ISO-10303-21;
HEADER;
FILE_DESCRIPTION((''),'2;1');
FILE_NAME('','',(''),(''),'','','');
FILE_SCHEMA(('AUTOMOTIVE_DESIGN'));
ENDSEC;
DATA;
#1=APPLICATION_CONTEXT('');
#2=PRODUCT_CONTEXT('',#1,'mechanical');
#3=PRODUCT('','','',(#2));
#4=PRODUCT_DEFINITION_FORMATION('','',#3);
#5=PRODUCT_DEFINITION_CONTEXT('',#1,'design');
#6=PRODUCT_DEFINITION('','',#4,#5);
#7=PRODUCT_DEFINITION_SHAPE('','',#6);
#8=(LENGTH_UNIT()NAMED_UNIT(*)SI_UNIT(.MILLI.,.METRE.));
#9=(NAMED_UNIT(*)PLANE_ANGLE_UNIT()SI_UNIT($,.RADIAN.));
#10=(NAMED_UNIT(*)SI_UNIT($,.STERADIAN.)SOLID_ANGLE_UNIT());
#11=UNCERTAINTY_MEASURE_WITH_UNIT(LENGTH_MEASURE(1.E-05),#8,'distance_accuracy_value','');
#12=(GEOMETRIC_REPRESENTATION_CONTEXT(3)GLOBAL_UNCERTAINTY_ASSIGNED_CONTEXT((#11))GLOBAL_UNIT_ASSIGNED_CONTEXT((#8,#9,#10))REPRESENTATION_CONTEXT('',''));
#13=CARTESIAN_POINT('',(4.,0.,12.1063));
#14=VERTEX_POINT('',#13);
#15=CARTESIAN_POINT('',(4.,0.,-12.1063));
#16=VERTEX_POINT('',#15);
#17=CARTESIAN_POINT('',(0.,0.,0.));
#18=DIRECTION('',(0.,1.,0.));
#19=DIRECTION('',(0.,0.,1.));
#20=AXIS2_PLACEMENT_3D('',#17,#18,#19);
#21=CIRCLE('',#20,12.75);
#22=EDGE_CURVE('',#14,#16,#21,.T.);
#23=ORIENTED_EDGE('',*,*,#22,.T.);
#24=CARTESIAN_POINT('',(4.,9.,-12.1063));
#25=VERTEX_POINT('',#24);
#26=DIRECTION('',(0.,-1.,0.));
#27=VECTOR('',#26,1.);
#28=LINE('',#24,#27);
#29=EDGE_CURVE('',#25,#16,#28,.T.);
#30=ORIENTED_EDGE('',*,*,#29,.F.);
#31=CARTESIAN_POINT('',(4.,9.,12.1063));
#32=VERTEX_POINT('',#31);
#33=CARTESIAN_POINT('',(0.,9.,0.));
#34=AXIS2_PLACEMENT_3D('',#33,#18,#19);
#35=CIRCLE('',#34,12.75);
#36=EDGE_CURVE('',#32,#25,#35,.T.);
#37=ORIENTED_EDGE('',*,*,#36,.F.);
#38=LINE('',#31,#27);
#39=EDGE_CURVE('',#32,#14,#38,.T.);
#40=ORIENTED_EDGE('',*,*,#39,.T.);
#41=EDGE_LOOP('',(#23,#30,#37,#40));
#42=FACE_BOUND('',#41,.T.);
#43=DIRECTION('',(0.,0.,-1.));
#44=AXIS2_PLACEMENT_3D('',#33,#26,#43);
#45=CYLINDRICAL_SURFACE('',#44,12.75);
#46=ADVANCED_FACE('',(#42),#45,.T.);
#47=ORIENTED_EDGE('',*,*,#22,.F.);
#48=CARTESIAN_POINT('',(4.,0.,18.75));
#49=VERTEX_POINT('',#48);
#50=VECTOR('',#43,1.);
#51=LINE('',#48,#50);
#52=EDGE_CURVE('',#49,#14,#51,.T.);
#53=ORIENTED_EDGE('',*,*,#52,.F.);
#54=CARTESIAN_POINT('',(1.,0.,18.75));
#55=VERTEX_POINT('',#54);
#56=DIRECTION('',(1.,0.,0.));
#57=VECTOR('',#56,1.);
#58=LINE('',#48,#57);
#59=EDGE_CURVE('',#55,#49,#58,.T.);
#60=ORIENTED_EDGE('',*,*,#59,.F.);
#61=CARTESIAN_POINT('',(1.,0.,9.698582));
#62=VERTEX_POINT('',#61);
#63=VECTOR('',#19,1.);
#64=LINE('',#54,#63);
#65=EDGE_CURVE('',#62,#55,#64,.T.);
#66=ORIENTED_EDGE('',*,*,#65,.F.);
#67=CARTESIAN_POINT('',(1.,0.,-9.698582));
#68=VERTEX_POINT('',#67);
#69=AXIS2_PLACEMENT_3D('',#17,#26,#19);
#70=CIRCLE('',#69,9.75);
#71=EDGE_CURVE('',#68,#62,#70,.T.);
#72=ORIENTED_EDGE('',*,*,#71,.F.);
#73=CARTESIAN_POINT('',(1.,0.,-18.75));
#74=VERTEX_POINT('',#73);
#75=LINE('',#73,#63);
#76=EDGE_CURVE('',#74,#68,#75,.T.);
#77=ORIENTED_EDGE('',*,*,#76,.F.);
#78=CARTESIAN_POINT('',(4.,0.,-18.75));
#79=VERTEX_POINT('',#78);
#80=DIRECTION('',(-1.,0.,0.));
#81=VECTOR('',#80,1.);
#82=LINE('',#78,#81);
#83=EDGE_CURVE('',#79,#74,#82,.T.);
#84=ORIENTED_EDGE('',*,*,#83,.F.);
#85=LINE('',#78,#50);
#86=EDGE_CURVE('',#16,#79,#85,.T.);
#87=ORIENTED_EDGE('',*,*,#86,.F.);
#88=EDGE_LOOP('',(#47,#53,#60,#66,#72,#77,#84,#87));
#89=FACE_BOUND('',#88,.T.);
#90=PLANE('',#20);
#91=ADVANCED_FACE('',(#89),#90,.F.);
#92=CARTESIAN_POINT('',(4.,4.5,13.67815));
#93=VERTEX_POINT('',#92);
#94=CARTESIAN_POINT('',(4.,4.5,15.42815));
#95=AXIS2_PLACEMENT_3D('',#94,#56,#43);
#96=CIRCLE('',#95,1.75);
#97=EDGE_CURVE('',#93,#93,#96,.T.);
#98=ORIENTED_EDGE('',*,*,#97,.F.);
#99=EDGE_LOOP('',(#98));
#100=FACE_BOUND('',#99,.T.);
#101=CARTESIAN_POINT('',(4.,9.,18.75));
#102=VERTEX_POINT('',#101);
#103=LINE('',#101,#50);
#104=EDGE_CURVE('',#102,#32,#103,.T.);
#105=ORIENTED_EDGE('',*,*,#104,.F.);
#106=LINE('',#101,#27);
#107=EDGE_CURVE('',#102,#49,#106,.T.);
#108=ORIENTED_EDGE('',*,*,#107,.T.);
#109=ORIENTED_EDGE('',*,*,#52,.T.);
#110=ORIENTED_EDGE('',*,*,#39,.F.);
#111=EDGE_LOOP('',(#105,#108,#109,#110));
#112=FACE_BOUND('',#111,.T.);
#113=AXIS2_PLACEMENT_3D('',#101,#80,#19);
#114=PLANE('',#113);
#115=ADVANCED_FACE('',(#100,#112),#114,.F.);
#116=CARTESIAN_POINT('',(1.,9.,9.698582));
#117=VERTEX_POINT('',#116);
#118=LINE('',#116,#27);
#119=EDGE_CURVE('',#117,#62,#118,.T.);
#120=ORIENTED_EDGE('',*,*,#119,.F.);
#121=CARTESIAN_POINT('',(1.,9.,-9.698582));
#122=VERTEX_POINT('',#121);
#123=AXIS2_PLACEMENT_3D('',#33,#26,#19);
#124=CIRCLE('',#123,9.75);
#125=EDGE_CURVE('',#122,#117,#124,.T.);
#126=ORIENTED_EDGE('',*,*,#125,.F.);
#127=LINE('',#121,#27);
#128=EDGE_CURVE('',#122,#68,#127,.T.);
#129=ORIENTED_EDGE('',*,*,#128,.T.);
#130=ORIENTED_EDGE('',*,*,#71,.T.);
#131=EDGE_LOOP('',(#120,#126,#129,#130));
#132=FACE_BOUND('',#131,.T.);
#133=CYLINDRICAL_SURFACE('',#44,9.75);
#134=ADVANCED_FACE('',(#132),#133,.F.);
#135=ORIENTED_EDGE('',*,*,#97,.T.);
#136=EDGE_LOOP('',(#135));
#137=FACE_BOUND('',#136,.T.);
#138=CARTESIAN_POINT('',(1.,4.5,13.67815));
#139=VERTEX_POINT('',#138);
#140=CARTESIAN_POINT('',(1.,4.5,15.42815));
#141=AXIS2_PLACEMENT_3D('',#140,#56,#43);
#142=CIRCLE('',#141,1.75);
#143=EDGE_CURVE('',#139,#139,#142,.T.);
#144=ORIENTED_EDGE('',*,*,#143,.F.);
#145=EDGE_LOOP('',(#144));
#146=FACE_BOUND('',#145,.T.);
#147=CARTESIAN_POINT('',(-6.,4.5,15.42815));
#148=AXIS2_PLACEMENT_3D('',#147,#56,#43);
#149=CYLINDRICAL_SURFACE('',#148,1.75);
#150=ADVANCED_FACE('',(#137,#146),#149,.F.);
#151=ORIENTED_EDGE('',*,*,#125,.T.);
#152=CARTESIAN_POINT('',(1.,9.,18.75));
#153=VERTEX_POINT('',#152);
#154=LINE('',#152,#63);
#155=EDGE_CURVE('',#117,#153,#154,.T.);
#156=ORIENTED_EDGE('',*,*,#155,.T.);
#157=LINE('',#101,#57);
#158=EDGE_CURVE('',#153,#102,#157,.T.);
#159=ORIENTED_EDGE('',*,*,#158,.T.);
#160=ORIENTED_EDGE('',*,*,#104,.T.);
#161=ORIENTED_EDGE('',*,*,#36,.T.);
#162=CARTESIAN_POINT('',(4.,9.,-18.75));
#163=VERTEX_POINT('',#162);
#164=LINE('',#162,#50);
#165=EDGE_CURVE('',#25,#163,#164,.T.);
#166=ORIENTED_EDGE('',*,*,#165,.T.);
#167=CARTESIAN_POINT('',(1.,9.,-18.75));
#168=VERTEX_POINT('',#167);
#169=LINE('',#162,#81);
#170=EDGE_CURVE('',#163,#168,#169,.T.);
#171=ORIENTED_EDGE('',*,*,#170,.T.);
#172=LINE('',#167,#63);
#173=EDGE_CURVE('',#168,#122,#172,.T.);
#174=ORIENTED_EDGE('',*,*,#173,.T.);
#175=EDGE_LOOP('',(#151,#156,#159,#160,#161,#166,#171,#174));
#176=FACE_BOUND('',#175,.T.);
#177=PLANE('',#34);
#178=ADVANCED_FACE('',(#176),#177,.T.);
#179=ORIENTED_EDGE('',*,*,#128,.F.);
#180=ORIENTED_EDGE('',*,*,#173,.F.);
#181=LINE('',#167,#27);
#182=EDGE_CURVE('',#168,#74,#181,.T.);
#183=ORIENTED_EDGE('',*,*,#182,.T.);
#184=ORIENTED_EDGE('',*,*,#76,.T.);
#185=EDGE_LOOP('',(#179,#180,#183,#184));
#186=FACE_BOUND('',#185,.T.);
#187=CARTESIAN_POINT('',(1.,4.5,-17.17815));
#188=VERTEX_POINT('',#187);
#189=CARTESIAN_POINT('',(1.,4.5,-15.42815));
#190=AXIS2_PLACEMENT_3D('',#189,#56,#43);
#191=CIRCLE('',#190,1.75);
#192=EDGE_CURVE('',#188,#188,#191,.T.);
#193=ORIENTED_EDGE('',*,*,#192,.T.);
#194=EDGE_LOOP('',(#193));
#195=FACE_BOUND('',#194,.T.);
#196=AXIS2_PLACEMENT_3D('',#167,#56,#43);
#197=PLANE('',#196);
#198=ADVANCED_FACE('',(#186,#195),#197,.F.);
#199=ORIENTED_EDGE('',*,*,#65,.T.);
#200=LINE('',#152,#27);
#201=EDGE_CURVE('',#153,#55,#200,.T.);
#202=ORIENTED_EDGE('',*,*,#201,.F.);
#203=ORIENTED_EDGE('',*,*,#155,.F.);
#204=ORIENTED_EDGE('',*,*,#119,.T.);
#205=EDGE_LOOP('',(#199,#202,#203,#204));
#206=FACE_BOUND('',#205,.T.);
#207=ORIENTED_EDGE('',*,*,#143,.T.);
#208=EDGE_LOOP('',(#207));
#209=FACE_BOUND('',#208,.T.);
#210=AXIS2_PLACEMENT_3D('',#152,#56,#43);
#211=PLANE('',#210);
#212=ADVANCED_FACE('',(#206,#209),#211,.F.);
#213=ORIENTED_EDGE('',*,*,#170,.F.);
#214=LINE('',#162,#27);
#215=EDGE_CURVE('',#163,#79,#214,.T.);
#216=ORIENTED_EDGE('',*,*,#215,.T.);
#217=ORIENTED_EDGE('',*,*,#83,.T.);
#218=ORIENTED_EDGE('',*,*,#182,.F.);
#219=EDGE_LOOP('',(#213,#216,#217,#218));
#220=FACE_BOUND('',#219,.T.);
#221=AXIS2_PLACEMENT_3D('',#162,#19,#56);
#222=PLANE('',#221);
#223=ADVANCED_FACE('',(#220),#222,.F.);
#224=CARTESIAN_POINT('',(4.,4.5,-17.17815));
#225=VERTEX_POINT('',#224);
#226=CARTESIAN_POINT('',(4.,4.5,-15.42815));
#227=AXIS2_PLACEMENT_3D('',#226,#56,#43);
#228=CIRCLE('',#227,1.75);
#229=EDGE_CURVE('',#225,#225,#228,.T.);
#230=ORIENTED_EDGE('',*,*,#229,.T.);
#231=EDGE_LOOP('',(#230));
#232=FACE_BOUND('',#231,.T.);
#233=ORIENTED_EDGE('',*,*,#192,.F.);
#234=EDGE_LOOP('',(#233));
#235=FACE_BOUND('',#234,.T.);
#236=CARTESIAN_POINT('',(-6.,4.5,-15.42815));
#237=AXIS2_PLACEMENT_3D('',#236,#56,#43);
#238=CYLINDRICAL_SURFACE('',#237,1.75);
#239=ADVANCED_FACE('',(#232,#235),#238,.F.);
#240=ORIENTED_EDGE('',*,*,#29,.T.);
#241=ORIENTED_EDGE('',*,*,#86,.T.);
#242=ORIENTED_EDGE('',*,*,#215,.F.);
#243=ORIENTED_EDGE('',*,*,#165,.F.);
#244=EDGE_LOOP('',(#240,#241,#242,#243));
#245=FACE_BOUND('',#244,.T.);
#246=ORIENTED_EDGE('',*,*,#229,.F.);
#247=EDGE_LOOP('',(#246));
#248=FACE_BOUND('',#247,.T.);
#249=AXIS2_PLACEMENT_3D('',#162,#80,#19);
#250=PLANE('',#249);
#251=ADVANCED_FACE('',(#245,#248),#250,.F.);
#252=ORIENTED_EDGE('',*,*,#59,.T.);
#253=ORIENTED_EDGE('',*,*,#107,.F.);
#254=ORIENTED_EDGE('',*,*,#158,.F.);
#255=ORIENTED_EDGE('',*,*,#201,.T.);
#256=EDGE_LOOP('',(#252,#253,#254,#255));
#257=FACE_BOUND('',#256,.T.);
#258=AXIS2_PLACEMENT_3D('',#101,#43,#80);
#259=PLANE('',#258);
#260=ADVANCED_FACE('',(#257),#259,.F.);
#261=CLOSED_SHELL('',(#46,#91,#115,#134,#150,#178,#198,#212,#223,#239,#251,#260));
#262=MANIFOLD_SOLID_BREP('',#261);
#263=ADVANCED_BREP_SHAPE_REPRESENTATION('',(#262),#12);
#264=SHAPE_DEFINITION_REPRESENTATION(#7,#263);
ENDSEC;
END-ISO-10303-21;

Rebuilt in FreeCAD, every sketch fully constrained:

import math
import FreeCAD as App
import Part
import Sketcher

V = App.Vector

doc = App.newDocument("Part")
body = doc.addObject("PartDesign::Body", "Body")

# Sketch on XZ plane
sketch1 = body.newObject("Sketcher::SketchObject", "Sketch")
sketch1.AttachmentSupport = (doc.getObject("XZ_Plane"), [""])
sketch1.MapMode = "FlatFace"
sketch1.addGeometry(Part.LineSegment(V(4, 18.8, 0), V(4, 12.1, 0)), False)
sketch1.addGeometry(Part.ArcOfCircle(Part.Circle(V(0, 0, 0), V(0, 0, 1), 12.8), math.radians(-72), math.radians(72)), False)
sketch1.addGeometry(Part.LineSegment(V(4, -12.1, 0), V(4, -18.8, 0)), False)
sketch1.addGeometry(Part.LineSegment(V(4, -18.8, 0), V(1, -18.8, 0)), False)
sketch1.addGeometry(Part.LineSegment(V(1, -18.8, 0), V(1, -9.7, 0)), False)
sketch1.addGeometry(Part.ArcOfCircle(Part.Circle(V(0, 0, 0), V(0, 0, 1), 9.8), math.radians(-84), math.radians(84)), False)
sketch1.addGeometry(Part.LineSegment(V(1, 9.7, 0), V(1, 18.8, 0)), False)
sketch1.addGeometry(Part.LineSegment(V(1, 18.8, 0), V(4, 18.8, 0)), False)
sketch1.addConstraint(Sketcher.Constraint("Coincident", 0, 2, 1, 2))
sketch1.addConstraint(Sketcher.Constraint("Coincident", 1, 1, 2, 1))
sketch1.addConstraint(Sketcher.Constraint("Coincident", 2, 2, 3, 1))
sketch1.addConstraint(Sketcher.Constraint("Coincident", 3, 2, 4, 1))
sketch1.addConstraint(Sketcher.Constraint("Coincident", 4, 2, 5, 1))
sketch1.addConstraint(Sketcher.Constraint("Coincident", 5, 2, 6, 1))
sketch1.addConstraint(Sketcher.Constraint("Coincident", 6, 2, 7, 1))
sketch1.addConstraint(Sketcher.Constraint("Coincident", 7, 2, 0, 1))
sketch1.addConstraint(Sketcher.Constraint("Vertical", 0))
sketch1.addConstraint(Sketcher.Constraint("Vertical", 2))
sketch1.addConstraint(Sketcher.Constraint("Horizontal", 3))
sketch1.addConstraint(Sketcher.Constraint("Vertical", 4))
sketch1.addConstraint(Sketcher.Constraint("Vertical", 6))
sketch1.addConstraint(Sketcher.Constraint("Horizontal", 7))
sketch1.addConstraint(Sketcher.Constraint("Coincident", 1, 3, -1, 1))
sketch1.addConstraint(Sketcher.Constraint("Coincident", 5, 3, -1, 1))
sketch1.addConstraint(Sketcher.Constraint("Symmetric", 3, 2, 6, 2, -1))
sketch1.addConstraint(Sketcher.Constraint("Vertical", 0, 2, 1, 1))
sketch1.addConstraint(Sketcher.Constraint("DistanceX", 3, 2, 3, 1, 3.0))
sketch1.addConstraint(Sketcher.Constraint("Radius", 1, 12.75))
sketch1.addConstraint(Sketcher.Constraint("Radius", 5, 9.75))
sketch1.addConstraint(Sketcher.Constraint("DistanceX", -1, 1, 0, 2, 4.0))
sketch1.addConstraint(Sketcher.Constraint("DistanceY", 2, 2, -1, 1, 18.75))
pad1 = body.newObject("PartDesign::Pad", "Pad")
pad1.Profile = sketch1
pad1.Length = 9
pad1.Reversed = True

# Sketch on YZ plane
sketch2 = body.newObject("Sketcher::SketchObject", "Sketch001")
sketch2.AttachmentSupport = (doc.getObject("YZ_Plane"), [""])
sketch2.MapMode = "FlatFace"
sketch2.AttachmentOffset = App.Placement(V(0, 0, 4), App.Rotation())
sketch2.addGeometry(Part.Circle(V(4.5, 15.4, 0), V(0, 0, 1), 1.8), False)
sketch2.addGeometry(Part.Circle(V(4.5, -15.4, 0), V(0, 0, 1), 1.8), False)
sketch2.addConstraint(Sketcher.Constraint("Equal", 0, 1))
sketch2.addConstraint(Sketcher.Constraint("Symmetric", 0, 3, 1, 3, -1))
sketch2.addConstraint(Sketcher.Constraint("Diameter", 0, 3.5))
sketch2.addConstraint(Sketcher.Constraint("DistanceX", -1, 1, 0, 3, 4.5))
sketch2.addConstraint(Sketcher.Constraint("DistanceY", 1, 3, 0, 3, 30.8563))
pocket1 = body.newObject("PartDesign::Pocket", "Pocket")
pocket1.Profile = sketch2
pocket1.Length = 10

doc.recompute()
